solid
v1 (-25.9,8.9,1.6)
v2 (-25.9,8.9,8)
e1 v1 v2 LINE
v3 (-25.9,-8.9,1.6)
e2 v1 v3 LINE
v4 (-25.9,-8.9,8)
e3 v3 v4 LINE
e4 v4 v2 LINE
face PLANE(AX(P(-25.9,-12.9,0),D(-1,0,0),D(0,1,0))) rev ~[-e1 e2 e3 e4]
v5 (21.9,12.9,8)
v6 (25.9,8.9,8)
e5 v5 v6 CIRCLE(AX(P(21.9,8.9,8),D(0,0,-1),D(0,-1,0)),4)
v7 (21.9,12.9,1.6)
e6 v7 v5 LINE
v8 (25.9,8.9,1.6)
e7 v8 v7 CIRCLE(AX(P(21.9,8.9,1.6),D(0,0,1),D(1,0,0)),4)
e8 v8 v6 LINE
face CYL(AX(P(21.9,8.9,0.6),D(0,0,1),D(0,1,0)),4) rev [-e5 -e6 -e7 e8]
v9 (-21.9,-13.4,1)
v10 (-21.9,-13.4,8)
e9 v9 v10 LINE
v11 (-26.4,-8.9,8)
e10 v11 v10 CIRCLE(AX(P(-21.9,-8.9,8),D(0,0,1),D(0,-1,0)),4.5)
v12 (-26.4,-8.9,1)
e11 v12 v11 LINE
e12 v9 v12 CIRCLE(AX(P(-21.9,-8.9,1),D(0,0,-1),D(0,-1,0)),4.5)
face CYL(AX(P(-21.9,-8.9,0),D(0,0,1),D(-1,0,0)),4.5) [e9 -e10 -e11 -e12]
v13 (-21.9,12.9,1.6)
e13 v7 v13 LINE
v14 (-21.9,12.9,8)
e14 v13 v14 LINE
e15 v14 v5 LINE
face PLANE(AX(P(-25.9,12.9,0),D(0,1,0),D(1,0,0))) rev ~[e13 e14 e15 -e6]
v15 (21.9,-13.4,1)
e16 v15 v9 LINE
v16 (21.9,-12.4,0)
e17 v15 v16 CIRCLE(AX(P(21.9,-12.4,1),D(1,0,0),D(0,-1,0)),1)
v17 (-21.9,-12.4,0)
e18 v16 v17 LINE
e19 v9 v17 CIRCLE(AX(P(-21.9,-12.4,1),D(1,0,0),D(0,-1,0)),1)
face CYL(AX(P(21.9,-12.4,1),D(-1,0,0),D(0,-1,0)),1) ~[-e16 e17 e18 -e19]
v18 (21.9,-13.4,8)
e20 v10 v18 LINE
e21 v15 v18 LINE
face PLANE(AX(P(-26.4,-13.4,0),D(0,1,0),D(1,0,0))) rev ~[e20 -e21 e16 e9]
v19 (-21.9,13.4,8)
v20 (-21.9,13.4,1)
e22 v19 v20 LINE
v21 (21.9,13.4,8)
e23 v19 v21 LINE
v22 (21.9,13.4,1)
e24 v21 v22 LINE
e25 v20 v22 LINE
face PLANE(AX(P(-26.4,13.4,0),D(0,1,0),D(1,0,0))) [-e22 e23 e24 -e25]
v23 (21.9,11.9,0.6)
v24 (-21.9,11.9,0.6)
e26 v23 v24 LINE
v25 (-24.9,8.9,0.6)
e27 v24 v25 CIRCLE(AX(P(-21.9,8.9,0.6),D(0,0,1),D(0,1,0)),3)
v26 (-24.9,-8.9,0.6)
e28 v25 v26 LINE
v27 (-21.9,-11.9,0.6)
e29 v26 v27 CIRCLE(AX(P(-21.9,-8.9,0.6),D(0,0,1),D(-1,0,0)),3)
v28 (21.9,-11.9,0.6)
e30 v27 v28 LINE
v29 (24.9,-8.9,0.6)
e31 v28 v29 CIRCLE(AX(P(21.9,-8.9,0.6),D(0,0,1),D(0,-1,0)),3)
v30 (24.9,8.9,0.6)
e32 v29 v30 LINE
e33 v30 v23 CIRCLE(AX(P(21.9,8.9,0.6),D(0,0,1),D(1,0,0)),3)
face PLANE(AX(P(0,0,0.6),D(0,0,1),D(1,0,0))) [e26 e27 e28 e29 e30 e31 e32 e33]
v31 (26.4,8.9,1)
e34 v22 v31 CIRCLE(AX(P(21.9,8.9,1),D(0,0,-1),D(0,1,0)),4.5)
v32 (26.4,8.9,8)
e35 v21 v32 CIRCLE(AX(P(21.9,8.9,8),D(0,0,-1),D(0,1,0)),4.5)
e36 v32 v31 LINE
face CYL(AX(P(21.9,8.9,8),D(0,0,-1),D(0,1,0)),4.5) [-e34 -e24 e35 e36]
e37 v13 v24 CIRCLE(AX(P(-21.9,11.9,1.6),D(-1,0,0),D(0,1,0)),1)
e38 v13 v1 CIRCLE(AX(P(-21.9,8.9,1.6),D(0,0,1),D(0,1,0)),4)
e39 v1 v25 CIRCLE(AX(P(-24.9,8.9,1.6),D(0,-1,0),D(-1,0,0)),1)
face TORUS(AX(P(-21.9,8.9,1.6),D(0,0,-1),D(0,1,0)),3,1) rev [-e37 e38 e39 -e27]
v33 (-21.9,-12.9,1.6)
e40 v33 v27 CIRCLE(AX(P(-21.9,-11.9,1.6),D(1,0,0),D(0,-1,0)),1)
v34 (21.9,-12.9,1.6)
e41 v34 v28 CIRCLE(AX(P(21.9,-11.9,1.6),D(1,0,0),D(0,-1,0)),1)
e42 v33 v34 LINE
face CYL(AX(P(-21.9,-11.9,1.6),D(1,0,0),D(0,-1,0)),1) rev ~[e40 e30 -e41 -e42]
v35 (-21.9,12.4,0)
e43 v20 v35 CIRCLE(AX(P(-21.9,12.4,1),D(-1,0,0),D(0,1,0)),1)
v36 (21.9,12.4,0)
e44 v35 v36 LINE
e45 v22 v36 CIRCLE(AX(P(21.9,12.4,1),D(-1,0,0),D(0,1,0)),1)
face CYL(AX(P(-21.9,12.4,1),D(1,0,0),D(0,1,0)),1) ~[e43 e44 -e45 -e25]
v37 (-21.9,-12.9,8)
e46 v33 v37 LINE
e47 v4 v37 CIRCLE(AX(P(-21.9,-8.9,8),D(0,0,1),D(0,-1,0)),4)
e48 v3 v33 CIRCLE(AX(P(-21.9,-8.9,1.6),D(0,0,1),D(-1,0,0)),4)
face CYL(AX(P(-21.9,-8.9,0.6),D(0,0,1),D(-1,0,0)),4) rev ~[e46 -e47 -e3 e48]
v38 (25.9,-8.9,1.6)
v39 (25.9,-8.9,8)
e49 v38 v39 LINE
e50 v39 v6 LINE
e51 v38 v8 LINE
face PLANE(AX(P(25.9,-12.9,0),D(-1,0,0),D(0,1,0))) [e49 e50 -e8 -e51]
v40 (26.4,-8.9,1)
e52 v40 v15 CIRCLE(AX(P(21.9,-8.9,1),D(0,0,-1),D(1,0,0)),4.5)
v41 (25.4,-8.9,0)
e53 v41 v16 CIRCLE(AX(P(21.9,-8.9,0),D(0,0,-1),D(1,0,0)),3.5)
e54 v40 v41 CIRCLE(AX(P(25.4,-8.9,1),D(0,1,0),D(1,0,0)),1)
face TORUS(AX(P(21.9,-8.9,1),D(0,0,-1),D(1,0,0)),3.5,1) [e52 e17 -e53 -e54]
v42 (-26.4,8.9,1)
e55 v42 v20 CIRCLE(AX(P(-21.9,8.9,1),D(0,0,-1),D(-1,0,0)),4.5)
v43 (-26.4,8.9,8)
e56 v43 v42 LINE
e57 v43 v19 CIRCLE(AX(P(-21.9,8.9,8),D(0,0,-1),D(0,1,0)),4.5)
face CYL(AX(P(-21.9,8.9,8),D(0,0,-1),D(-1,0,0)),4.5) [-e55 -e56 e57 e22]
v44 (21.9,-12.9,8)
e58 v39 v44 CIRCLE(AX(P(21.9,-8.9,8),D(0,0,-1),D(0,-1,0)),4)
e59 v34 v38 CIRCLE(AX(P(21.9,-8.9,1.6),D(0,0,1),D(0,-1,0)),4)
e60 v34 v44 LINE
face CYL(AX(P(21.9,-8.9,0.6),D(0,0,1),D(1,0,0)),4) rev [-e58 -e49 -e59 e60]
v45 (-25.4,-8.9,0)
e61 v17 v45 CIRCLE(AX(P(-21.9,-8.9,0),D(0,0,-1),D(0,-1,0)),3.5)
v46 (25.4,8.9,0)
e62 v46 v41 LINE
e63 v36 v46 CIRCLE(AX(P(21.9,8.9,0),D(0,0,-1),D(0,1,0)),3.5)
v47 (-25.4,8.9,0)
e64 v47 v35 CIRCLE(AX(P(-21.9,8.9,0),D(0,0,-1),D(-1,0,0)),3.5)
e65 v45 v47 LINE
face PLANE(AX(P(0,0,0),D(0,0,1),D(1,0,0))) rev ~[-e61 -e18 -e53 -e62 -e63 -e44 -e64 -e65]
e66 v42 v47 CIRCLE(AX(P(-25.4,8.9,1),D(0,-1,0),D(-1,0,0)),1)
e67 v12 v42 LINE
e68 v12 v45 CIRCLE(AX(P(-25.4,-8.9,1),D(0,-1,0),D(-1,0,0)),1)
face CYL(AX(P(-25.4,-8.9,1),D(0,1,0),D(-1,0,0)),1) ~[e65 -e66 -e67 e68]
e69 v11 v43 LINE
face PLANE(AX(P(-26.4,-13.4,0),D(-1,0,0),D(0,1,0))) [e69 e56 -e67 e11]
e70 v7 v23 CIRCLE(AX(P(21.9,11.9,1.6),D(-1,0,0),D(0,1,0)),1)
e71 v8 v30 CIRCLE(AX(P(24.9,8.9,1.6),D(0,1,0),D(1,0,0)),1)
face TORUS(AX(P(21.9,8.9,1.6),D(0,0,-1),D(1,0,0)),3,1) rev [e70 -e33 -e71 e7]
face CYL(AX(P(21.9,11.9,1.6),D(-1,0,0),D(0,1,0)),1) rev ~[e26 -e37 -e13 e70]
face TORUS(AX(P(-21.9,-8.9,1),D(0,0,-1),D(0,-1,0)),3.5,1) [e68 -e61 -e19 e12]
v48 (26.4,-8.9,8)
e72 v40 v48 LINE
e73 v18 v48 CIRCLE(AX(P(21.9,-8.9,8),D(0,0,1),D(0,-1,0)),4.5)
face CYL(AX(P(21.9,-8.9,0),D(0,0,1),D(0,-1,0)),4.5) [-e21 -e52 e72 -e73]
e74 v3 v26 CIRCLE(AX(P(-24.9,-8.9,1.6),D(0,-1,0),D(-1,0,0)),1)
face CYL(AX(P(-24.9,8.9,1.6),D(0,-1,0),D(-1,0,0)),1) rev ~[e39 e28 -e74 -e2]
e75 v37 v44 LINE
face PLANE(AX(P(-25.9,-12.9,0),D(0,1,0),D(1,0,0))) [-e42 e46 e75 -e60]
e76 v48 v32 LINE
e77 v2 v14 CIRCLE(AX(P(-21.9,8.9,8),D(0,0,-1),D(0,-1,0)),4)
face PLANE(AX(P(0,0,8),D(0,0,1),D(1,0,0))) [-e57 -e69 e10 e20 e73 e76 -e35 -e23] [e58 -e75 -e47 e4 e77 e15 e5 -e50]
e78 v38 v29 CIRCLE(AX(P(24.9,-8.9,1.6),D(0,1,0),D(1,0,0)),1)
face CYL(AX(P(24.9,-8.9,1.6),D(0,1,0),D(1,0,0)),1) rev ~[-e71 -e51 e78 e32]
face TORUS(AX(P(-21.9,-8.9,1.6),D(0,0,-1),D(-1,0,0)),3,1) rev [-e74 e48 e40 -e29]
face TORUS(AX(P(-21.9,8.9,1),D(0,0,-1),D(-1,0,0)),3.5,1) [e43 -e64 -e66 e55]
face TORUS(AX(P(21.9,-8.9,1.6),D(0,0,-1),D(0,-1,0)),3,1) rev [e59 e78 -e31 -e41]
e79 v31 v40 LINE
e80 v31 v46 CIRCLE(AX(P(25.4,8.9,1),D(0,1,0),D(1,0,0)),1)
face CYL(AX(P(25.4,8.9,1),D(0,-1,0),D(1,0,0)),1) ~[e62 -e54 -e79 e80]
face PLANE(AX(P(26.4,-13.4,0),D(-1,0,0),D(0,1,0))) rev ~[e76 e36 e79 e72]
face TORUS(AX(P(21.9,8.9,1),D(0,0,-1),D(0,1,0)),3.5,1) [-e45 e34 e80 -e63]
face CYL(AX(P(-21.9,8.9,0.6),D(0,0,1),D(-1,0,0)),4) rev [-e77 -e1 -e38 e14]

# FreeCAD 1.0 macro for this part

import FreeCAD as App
import Part
import Sketcher
from FreeCAD import Vector
Q = App.Units.Quantity


def edges_at(feature, points):
    """Names of the edges that pass closest to the given points."""
    edges = feature.Shape.Edges
    near = lambda p: min(range(len(edges)), key=lambda i: edges[i].distToShape(Part.Vertex(*p))[0])
    return sorted({f"Edge{near(p) + 1}" for p in points})

doc = App.newDocument("Part")
params = doc.addObject("Spreadsheet::Sheet", "Params")
for row, (alias, value) in enumerate([
    ("sketch1_width", "52.8 mm"),
    ("sketch1_height", "26.8 mm"),
    ("pad1_length", "0.6 mm"),
    ("sketch2_width", "52.8 mm"),
    ("sketch2_width2", "51.8 mm"),
    ("sketch2_height", "26.8 mm"),
    ("sketch2_height2", "25.8 mm"),
    ("pad2_length", "8 mm"),
    ("fillet_radius", "4 mm"),
    ("fillet2_radius", "4.5 mm"),
    ("fillet3_radius", "1 mm"),
], start=1):
    params.set(f"A{row}", alias)
    params.set(f"B{row}", "=" + value)
    params.setAlias(f"B{row}", alias)

body = doc.addObject("PartDesign::Body", "Body")

sketch1 = doc.addObject("Sketcher::SketchObject", "Sketch")
body.addObject(sketch1)
sketch1.AttachmentSupport = (doc.XY_Plane, [""])
sketch1.MapMode = "FlatFace"
sketch1.addGeometry([
    Part.LineSegment(Vector(-26, 13, 0), Vector(-26, -13, 0)),
    Part.LineSegment(Vector(-26, -13, 0), Vector(26, -13, 0)),
    Part.LineSegment(Vector(26, -13, 0), Vector(26, 13, 0)),
    Part.LineSegment(Vector(26, 13, 0), Vector(-26, 13, 0)),
], False)
sketch1.addConstraint([
    Sketcher.Constraint("Coincident", 0, 2, 1, 1),
    Sketcher.Constraint("Coincident", 1, 2, 2, 1),
    Sketcher.Constraint("Coincident", 2, 2, 3, 1),
    Sketcher.Constraint("Coincident", 3, 2, 0, 1),
    Sketcher.Constraint("Vertical", 0),
    Sketcher.Constraint("Horizontal", 1),
    Sketcher.Constraint("Vertical", 2),
    Sketcher.Constraint("Horizontal", 3),
    Sketcher.Constraint("Symmetric", 0, 2, 2, 2, -1, 1),
    Sketcher.Constraint("DistanceX", 1, 1, 1, 2, Q("52.8 mm")),
    Sketcher.Constraint("DistanceY", 0, 2, 0, 1, Q("26.8 mm")),
])
sketch1.setExpression("Constraints[9]", "Params.sketch1_width")
sketch1.setExpression("Constraints[10]", "Params.sketch1_height")
pad1 = doc.addObject("PartDesign::Pad", "Pad")
body.addObject(pad1)
pad1.Profile = sketch1
pad1.setExpression("Length", "Params.pad1_length")

sketch2 = doc.addObject("Sketcher::SketchObject", "Sketch001")
body.addObject(sketch2)
sketch2.AttachmentSupport = (doc.XY_Plane, [""])
sketch2.MapMode = "FlatFace"
sketch2.addGeometry([
    Part.LineSegment(Vector(-26, 13, 0), Vector(-26, -13, 0)),
    Part.LineSegment(Vector(-26, -13, 0), Vector(26, -13, 0)),
    Part.LineSegment(Vector(26, -13, 0), Vector(26, 13, 0)),
    Part.LineSegment(Vector(26, 13, 0), Vector(-26, 13, 0)),
    Part.LineSegment(Vector(26, -13, 0), Vector(-26, -13, 0)),
    Part.LineSegment(Vector(-26, -13, 0), Vector(-26, 13, 0)),
    Part.LineSegment(Vector(-26, 13, 0), Vector(26, 13, 0)),
    Part.LineSegment(Vector(26, 13, 0), Vector(26, -13, 0)),
], False)
sketch2.addConstraint([
    Sketcher.Constraint("Coincident", 0, 2, 1, 1),
    Sketcher.Constraint("Coincident", 1, 2, 2, 1),
    Sketcher.Constraint("Coincident", 2, 2, 3, 1),
    Sketcher.Constraint("Coincident", 3, 2, 0, 1),
    Sketcher.Constraint("Coincident", 4, 2, 5, 1),
    Sketcher.Constraint("Coincident", 5, 2, 6, 1),
    Sketcher.Constraint("Coincident", 6, 2, 7, 1),
    Sketcher.Constraint("Coincident", 7, 2, 4, 1),
    Sketcher.Constraint("Vertical", 0),
    Sketcher.Constraint("Horizontal", 1),
    Sketcher.Constraint("Vertical", 2),
    Sketcher.Constraint("Horizontal", 3),
    Sketcher.Constraint("Horizontal", 4),
    Sketcher.Constraint("Vertical", 5),
    Sketcher.Constraint("Horizontal", 6),
    Sketcher.Constraint("Vertical", 7),
    Sketcher.Constraint("Symmetric", 0, 2, 2, 2, -1, 1),
    Sketcher.Constraint("Symmetric", 4, 2, 6, 2, -1, 1),
    Sketcher.Constraint("DistanceX", 1, 1, 1, 2, Q("52.8 mm")),
    Sketcher.Constraint("DistanceX", 4, 2, 4, 1, Q("51.8 mm")),
    Sketcher.Constraint("DistanceY", 0, 2, 0, 1, Q("26.8 mm")),
    Sketcher.Constraint("DistanceY", 5, 1, 5, 2, Q("25.8 mm")),
])
sketch2.setExpression("Constraints[18]", "Params.sketch2_width")
sketch2.setExpression("Constraints[19]", "Params.sketch2_width2")
sketch2.setExpression("Constraints[20]", "Params.sketch2_height")
sketch2.setExpression("Constraints[21]", "Params.sketch2_height2")
pad2 = doc.addObject("PartDesign::Pad", "Pad001")
body.addObject(pad2)
pad2.Profile = sketch2
pad2.setExpression("Length", "Params.pad2_length")
doc.recompute()

fillet = doc.addObject("PartDesign::Fillet", "Fillet")
body.addObject(fillet)
fillet.Base = (pad2, edges_at(pad2, [
    (-25.9, 12.9, 4.3),
    (25.9, 12.9, 4.3),
    (25.9, -12.9, 4.3),
    (-25.9, -12.9, 4.3),
]))
fillet.setExpression("Radius", "Params.fillet_radius")
doc.recompute()

fillet2 = doc.addObject("PartDesign::Fillet", "Fillet001")
body.addObject(fillet2)
fillet2.Base = (fillet, edges_at(fillet, [
    (26.4, 13.4, 4),
    (26.4, -13.4, 4),
    (-26.4, 13.4, 4),
    (-26.4, -13.4, 4),
]))
fillet2.setExpression("Radius", "Params.fillet2_radius")
doc.recompute()

fillet3 = doc.addObject("PartDesign::Fillet", "Fillet002")
body.addObject(fillet3)
fillet3.Base = (fillet2, edges_at(fillet2, [(0, 12.9, 0.6), (0, 13.4, 0)]))
fillet3.setExpression("Radius", "Params.fillet3_radius")

doc.recompute()
